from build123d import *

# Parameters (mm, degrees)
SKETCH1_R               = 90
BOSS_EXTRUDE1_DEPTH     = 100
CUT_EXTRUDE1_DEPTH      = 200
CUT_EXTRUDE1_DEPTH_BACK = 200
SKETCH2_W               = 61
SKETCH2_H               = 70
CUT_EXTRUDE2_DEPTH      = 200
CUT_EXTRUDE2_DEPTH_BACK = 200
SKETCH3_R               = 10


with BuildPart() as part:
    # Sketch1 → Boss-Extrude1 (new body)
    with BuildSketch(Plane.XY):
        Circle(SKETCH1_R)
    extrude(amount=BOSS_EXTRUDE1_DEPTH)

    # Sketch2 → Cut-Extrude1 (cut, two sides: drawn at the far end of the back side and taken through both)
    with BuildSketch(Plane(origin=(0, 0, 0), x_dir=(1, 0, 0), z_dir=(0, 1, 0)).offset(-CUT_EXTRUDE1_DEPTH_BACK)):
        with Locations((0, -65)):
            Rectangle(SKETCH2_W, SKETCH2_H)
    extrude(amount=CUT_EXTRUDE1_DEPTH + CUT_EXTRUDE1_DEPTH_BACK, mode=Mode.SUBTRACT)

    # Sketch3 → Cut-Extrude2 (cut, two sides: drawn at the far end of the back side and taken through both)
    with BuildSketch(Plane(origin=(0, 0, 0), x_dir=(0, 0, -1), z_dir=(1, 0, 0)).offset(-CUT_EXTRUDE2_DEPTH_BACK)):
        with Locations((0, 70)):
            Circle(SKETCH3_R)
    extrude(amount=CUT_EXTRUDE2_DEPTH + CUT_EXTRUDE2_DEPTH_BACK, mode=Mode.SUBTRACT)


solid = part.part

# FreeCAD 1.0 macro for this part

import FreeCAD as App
import Part
import Sketcher

doc = App.newDocument("Part")
body = doc.addObject("PartDesign::Body", "Body")

sketch1 = doc.addObject("Sketcher::SketchObject", "Sketch")
body.addObject(sketch1)
sketch1.AttachmentSupport = (doc.XY_Plane, [""])
sketch1.MapMode = "FlatFace"
sketch1.addGeometry(Part.Circle(App.Vector(0, 0, 0), App.Vector(0, 0, 1), 90), False)
sketch1.addConstraint(Sketcher.Constraint("Coincident", 0, 3, -1, 1))
sketch1.addConstraint(Sketcher.Constraint("Diameter", 0, 180.0))
pad1 = doc.addObject("PartDesign::Pad", "Pad")
body.addObject(pad1)
pad1.Profile = sketch1
pad1.Length = 100

sketch2 = doc.addObject("Sketcher::SketchObject", "Sketch001")
body.addObject(sketch2)
sketch2.AttachmentSupport = (doc.XZ_Plane, [""])
sketch2.MapMode = "FlatFace"
sketch2.addGeometry(Part.LineSegment(App.Vector(-30.5, 30, 0), App.Vector(-30.5, 100, 0)), False)
sketch2.addGeometry(Part.LineSegment(App.Vector(-30.5, 100, 0), App.Vector(30.5, 100, 0)), False)
sketch2.addGeometry(Part.LineSegment(App.Vector(30.5, 100, 0), App.Vector(30.5, 30, 0)), False)
sketch2.addGeometry(Part.LineSegment(App.Vector(30.5, 30, 0), App.Vector(-30.5, 30, 0)), False)
sketch2.addConstraint(Sketcher.Constraint("Coincident", 0, 2, 1, 1))
sketch2.addConstraint(Sketcher.Constraint("Coincident", 1, 2, 2, 1))
sketch2.addConstraint(Sketcher.Constraint("Coincident", 2, 2, 3, 1))
sketch2.addConstraint(Sketcher.Constraint("Coincident", 3, 2, 0, 1))
sketch2.addConstraint(Sketcher.Constraint("Vertical", 0))
sketch2.addConstraint(Sketcher.Constraint("Horizontal", 1))
sketch2.addConstraint(Sketcher.Constraint("Vertical", 2))
sketch2.addConstraint(Sketcher.Constraint("Horizontal", 3))
sketch2.addConstraint(Sketcher.Constraint("DistanceX", 1, 1, 1, 2, 61.0))
sketch2.addConstraint(Sketcher.Constraint("DistanceY", 0, 1, 0, 2, 70.0))
sketch2.addConstraint(Sketcher.Constraint("DistanceY", -1, 1, 0, 2, 100.0))
sketch2.addConstraint(Sketcher.Constraint("DistanceX", 0, 2, -1, 1, 30.5))
pocket1 = doc.addObject("PartDesign::Pocket", "Pocket")
body.addObject(pocket1)
pocket1.Profile = sketch2
pocket1.Type = "ThroughAll"
pocket1.Midplane = True

sketch3 = doc.addObject("Sketcher::SketchObject", "Sketch002")
body.addObject(sketch3)
sketch3.AttachmentSupport = (doc.YZ_Plane, [""])
sketch3.MapMode = "FlatFace"
sketch3.addGeometry(Part.Circle(App.Vector(70, 0, 0), App.Vector(0, 0, 1), 10), False)
sketch3.addConstraint(Sketcher.Constraint("PointOnObject", 0, 3, -1))
sketch3.addConstraint(Sketcher.Constraint("Diameter", 0, 20.0))
sketch3.addConstraint(Sketcher.Constraint("DistanceX", -1, 1, 0, 3, 70.0))
pocket2 = doc.addObject("PartDesign::Pocket", "Pocket001")
body.addObject(pocket2)
pocket2.Profile = sketch3
pocket2.Type = "ThroughAll"
pocket2.Midplane = True

doc.recompute()
